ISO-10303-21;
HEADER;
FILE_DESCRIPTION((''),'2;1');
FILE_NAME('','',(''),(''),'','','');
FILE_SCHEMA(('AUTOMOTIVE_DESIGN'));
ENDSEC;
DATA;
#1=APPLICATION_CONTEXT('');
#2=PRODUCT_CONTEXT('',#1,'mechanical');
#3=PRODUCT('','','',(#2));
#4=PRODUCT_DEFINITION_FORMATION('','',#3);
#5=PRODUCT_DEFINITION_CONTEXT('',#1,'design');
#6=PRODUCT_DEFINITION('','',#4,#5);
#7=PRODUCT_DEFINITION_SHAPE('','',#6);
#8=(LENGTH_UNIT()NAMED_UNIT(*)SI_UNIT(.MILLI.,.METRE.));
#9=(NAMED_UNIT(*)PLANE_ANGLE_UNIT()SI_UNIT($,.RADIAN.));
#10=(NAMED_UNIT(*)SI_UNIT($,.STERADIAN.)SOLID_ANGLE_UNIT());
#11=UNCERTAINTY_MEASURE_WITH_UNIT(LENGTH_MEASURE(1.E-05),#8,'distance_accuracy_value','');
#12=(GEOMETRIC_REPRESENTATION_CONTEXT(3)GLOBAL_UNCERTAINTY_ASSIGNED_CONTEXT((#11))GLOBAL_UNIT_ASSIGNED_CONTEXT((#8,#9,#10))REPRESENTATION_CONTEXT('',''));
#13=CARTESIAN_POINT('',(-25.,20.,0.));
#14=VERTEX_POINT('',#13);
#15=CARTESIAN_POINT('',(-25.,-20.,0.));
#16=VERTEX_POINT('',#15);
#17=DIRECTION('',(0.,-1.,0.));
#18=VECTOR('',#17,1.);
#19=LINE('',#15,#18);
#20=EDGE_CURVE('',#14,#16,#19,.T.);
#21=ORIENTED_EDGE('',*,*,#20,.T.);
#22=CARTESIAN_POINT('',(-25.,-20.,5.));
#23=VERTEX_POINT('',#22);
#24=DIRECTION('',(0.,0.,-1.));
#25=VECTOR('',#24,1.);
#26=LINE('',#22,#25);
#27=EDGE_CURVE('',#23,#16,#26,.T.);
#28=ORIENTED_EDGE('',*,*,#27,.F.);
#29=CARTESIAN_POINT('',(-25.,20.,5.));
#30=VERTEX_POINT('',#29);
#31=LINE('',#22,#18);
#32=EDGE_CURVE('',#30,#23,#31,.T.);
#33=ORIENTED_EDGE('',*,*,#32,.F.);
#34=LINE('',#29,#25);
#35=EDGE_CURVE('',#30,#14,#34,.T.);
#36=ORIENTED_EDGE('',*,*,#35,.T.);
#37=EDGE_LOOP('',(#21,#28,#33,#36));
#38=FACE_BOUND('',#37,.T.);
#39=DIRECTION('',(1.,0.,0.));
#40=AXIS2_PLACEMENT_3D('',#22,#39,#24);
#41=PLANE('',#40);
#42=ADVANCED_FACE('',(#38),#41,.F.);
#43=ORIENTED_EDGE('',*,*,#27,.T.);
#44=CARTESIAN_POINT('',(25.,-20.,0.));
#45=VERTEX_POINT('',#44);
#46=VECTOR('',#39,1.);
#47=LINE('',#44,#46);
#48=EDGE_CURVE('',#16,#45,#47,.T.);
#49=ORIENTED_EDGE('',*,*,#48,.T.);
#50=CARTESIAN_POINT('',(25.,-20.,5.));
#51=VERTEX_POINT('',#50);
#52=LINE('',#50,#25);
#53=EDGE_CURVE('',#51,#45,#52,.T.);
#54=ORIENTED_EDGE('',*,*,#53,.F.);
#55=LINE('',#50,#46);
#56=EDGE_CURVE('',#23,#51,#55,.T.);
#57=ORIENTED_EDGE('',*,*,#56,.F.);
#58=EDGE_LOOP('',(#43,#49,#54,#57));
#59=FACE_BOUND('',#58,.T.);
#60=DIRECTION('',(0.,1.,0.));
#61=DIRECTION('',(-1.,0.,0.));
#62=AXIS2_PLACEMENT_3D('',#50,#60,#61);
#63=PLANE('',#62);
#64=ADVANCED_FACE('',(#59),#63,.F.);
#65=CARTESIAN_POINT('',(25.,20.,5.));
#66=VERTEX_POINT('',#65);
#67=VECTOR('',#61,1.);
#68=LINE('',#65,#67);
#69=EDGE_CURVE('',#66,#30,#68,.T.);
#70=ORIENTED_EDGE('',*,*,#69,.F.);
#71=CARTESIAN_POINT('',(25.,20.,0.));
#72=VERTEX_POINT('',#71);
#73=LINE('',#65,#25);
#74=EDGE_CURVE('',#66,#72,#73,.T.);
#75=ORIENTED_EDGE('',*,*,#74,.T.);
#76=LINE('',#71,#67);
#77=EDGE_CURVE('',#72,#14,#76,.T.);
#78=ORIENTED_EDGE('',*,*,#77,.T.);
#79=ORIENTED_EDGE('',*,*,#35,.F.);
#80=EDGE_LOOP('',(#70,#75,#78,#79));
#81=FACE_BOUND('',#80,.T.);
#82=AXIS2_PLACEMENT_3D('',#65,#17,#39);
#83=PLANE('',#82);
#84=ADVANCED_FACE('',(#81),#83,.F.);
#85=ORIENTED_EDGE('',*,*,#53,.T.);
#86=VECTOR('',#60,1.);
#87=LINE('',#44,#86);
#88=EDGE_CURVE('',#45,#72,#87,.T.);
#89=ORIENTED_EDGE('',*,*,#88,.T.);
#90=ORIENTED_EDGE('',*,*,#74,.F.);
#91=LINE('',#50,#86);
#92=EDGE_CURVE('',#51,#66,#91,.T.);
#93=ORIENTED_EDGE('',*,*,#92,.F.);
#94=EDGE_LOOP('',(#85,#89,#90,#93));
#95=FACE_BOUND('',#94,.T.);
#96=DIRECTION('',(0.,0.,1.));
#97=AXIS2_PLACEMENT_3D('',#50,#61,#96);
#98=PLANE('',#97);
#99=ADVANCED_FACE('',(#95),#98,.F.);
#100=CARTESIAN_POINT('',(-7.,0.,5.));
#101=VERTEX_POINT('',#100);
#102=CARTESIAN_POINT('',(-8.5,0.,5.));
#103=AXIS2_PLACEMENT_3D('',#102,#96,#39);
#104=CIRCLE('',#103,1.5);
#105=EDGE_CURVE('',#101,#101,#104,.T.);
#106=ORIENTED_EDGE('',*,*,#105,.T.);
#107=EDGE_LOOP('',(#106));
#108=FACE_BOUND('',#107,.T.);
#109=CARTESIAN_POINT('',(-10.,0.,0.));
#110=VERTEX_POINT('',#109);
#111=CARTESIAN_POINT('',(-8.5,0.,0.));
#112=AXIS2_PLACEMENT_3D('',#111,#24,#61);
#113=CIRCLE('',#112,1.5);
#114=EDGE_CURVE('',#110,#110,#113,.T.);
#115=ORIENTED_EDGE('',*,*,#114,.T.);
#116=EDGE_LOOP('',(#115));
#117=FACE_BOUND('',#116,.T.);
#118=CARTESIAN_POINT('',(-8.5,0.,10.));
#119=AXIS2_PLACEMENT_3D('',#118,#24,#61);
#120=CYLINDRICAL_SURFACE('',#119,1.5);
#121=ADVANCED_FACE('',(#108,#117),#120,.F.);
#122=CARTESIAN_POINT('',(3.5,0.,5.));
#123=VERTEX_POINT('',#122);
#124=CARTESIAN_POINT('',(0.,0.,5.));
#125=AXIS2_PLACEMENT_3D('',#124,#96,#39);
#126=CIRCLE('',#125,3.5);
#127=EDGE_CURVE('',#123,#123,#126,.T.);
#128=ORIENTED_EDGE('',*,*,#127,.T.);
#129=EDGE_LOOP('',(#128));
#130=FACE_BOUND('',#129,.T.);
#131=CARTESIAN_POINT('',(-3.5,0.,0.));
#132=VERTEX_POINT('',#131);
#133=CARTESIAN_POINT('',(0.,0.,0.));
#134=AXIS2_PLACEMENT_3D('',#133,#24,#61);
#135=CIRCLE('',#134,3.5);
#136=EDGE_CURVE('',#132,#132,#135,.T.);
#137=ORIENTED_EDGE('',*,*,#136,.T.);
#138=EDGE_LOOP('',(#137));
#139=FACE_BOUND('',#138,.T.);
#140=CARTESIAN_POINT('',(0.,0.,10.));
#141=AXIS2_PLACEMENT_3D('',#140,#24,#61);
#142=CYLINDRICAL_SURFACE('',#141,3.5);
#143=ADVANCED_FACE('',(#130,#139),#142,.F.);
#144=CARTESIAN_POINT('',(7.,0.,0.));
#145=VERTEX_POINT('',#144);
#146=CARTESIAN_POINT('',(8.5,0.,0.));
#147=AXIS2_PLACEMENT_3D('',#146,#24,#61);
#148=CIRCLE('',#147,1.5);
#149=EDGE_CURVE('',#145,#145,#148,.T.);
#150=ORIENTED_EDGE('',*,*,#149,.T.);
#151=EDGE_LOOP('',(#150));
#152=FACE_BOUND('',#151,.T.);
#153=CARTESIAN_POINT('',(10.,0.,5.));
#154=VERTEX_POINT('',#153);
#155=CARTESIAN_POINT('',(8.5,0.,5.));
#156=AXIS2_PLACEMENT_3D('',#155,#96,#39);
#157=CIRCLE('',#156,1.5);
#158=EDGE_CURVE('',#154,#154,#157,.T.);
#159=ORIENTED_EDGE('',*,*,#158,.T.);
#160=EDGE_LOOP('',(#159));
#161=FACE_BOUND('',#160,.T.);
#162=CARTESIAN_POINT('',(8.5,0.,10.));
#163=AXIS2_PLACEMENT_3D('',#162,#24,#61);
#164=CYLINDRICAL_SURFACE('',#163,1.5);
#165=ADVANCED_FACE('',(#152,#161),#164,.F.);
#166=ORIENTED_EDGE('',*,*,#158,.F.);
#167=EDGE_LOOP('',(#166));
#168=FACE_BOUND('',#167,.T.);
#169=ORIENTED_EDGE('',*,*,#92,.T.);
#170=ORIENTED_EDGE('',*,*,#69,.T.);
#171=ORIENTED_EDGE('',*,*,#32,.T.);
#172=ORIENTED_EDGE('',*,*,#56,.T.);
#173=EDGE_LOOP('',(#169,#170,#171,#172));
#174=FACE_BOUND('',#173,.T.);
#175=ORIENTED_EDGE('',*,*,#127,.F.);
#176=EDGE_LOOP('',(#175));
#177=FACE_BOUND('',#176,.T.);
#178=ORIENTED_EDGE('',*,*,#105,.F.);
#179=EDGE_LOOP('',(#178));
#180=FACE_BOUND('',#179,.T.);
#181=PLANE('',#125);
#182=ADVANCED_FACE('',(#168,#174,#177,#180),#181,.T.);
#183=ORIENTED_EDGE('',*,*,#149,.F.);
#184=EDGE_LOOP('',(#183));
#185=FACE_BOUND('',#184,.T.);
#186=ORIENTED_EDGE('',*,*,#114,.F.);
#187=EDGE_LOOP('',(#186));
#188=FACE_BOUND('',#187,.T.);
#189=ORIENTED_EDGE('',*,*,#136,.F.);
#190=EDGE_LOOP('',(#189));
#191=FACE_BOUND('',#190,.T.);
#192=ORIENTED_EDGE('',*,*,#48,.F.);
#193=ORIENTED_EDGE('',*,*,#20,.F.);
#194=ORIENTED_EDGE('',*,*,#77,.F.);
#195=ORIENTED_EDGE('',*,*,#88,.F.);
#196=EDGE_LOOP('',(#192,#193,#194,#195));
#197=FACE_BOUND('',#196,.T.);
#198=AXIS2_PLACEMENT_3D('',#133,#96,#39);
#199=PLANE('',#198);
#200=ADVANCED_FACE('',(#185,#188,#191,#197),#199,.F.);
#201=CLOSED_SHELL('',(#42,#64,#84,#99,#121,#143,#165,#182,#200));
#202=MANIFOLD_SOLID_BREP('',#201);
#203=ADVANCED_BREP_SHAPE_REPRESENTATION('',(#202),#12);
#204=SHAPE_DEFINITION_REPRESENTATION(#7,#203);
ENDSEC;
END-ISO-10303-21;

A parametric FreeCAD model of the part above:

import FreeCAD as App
import Part
import Sketcher
from FreeCAD import Vector
Q = App.Units.Quantity

doc = App.newDocument("Part")
body = doc.addObject("PartDesign::Body", "Body")

# Sketch on XY plane
sketch1 = body.newObject("Sketcher::SketchObject", "Sketch")
sketch1.AttachmentSupport = (doc.getObject("XY_Plane"), [""])
sketch1.MapMode = "FlatFace"
sketch1.addGeometry([
    Part.LineSegment(Vector(-25, 20, 0), Vector(-25, -20, 0)),
    Part.LineSegment(Vector(-25, -20, 0), Vector(25, -20, 0)),
    Part.LineSegment(Vector(25, -20, 0), Vector(25, 20, 0)),
    Part.LineSegment(Vector(25, 20, 0), Vector(-25, 20, 0)),
], False)
sketch1.addConstraint([
    Sketcher.Constraint("Coincident", 0, 2, 1, 1),
    Sketcher.Constraint("Coincident", 1, 2, 2, 1),
    Sketcher.Constraint("Coincident", 2, 2, 3, 1),
    Sketcher.Constraint("Coincident", 3, 2, 0, 1),
    Sketcher.Constraint("Vertical", 0),
    Sketcher.Constraint("Horizontal", 1),
    Sketcher.Constraint("Vertical", 2),
    Sketcher.Constraint("Horizontal", 3),
    Sketcher.Constraint("Symmetric", 0, 2, 2, 2, -1, 1),
    Sketcher.Constraint("DistanceX", 1, 1, 1, 2, Q("50 mm")),
    Sketcher.Constraint("DistanceY", 0, 2, 0, 1, Q("40 mm")),
])
pad1 = body.newObject("PartDesign::Pad", "Pad")
pad1.Profile = sketch1
pad1.Length = 5

# Sketch on XY plane
sketch2 = body.newObject("Sketcher::SketchObject", "Sketch001")
sketch2.AttachmentSupport = (doc.getObject("XY_Plane"), [""])
sketch2.MapMode = "FlatFace"
sketch2.addGeometry([
    Part.Circle(Vector(8.5, 0, 0), Vector(0, 0, 1), 1.5),
    Part.Circle(Vector(-8.5, 0, 0), Vector(0, 0, 1), 1.5),
    Part.Circle(Vector(0, 0, 0), Vector(0, 0, 1), 3.5),
], False)
sketch2.addConstraint([
    Sketcher.Constraint("Coincident", 2, 3, -1, 1),
    Sketcher.Constraint("Equal", 0, 1),
    Sketcher.Constraint("Symmetric", 0, 3, 1, 3, -1, 1),
    Sketcher.Constraint("PointOnObject", 0, 3, -1),
    Sketcher.Constraint("Diameter", 0, Q("3 mm")),
    Sketcher.Constraint("Diameter", 2, Q("7 mm")),
    Sketcher.Constraint("DistanceX", 1, 3, 0, 3, Q("17 mm")),
])
pocket1 = body.newObject("PartDesign::Pocket", "Pocket")
pocket1.Profile = sketch2
pocket1.Length = 10
pocket1.Reversed = True

doc.recompute()
